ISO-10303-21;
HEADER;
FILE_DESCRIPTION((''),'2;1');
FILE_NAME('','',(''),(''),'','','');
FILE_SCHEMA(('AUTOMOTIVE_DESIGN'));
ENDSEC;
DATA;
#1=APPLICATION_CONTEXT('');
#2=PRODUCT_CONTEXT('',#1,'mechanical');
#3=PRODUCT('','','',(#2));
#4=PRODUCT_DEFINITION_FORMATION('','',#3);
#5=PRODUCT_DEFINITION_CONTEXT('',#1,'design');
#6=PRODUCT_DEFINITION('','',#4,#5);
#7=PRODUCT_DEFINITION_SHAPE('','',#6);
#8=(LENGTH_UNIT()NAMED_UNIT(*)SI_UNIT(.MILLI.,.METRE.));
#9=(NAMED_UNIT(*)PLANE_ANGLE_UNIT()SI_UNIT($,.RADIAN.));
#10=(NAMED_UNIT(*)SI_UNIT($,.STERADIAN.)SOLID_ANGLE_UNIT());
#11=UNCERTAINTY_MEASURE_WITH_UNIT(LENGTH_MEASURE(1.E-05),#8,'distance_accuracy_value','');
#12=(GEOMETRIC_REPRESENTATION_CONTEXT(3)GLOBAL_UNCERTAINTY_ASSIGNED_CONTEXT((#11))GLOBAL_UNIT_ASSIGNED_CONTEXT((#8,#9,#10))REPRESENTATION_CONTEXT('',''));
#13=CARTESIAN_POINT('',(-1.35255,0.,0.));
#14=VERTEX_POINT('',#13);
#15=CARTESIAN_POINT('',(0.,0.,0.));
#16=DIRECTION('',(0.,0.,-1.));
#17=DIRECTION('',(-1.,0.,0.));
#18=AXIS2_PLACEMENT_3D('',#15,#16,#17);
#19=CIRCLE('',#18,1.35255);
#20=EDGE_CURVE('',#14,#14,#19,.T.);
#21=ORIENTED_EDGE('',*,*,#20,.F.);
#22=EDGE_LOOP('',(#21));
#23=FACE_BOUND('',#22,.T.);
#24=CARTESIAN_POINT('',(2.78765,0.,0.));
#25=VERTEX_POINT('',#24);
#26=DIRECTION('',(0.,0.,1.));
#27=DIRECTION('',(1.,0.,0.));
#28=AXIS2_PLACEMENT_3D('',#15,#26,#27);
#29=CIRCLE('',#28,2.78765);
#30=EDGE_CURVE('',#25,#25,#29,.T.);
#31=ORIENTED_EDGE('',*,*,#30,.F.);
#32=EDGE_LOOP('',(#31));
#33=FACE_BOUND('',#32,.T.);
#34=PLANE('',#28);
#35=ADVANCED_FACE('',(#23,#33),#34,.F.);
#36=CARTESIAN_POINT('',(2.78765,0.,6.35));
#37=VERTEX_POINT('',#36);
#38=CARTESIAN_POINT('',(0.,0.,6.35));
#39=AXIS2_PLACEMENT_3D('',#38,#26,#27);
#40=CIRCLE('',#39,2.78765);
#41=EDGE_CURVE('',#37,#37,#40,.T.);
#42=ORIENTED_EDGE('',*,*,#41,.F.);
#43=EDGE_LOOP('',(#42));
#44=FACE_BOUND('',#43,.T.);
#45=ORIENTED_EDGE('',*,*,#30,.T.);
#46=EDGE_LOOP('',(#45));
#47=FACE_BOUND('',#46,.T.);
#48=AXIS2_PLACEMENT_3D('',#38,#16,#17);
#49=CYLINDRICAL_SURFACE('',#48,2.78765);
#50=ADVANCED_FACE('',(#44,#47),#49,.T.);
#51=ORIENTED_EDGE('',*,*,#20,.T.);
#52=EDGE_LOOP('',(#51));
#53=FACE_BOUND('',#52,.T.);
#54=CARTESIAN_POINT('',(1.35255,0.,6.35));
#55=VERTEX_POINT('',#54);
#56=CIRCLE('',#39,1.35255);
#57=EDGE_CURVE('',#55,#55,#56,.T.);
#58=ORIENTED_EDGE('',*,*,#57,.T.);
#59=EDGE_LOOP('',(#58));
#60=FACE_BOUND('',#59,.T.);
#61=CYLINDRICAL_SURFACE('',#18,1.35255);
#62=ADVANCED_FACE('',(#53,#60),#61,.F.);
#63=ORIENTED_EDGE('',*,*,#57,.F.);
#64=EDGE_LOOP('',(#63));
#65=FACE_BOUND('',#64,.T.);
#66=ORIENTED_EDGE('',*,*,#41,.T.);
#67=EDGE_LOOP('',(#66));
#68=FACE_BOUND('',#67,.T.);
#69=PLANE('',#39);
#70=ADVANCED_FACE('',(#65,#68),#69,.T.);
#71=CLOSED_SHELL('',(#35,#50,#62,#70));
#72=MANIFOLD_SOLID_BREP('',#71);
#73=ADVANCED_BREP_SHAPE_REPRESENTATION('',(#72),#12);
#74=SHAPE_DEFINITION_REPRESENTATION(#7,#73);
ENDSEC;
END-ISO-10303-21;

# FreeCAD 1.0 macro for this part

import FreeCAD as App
import Part
import Sketcher
Q = App.Units.Quantity

doc = App.newDocument("Part")
params = doc.addObject("Spreadsheet::Sheet", "Params")
for row, (alias, value) in enumerate([
    ("pad1_length", "0.25 in"),
    ("hole_diameter", "0.1065 in"),
    ("hole_depth", "0.37 in"),
], start=1):
    params.set(f"A{row}", alias)
    params.set(f"B{row}", "=" + value)
    params.setAlias(f"B{row}", alias)

body = doc.addObject("PartDesign::Body", "Body")

sketch1 = body.newObject("Sketcher::SketchObject", "Sketch")
sketch1.AttachmentSupport = (doc.getObject("XY_Plane"), [""])
sketch1.MapMode = "FlatFace"
sketch1.addGeometry(Part.Circle(App.Vector(0, 0, 0), App.Vector(0, 0, 1), 2.8), False)
sketch1.addConstraint([
    Sketcher.Constraint("Coincident", 0, 3, -1, 1),
    Sketcher.Constraint("Diameter", 0, Q("0.2195 in")),
])
pad1 = body.newObject("PartDesign::Pad", "Pad")
pad1.Profile = sketch1
pad1.setExpression("Length", "Params.pad1_length")

sketch2 = body.newObject("Sketcher::SketchObject", "Sketch001")
sketch2.AttachmentSupport = (doc.getObject("XY_Plane"), [""])
sketch2.MapMode = "FlatFace"
sketch2.addGeometry(Part.Circle(App.Vector(0, 0, 0), App.Vector(0, 0, 1), 1.4), False)
sketch2.addConstraint([
    Sketcher.Constraint("Coincident", 0, 3, -1, 1),
    Sketcher.Constraint("Diameter", 0, Q("0.1065 in")),
])
doc.recompute()
hole = body.newObject("PartDesign::Hole", "Hole")
hole.Profile = sketch2
hole.ThreadType = "None"
hole.setExpression("Diameter", "Params.hole_diameter")
hole.DepthType = "Dimension"
hole.setExpression("Depth", "Params.hole_depth")
hole.DrillPoint = "Angled"
hole.DrillPointAngle = 118
hole.Reversed = True

doc.recompute()
